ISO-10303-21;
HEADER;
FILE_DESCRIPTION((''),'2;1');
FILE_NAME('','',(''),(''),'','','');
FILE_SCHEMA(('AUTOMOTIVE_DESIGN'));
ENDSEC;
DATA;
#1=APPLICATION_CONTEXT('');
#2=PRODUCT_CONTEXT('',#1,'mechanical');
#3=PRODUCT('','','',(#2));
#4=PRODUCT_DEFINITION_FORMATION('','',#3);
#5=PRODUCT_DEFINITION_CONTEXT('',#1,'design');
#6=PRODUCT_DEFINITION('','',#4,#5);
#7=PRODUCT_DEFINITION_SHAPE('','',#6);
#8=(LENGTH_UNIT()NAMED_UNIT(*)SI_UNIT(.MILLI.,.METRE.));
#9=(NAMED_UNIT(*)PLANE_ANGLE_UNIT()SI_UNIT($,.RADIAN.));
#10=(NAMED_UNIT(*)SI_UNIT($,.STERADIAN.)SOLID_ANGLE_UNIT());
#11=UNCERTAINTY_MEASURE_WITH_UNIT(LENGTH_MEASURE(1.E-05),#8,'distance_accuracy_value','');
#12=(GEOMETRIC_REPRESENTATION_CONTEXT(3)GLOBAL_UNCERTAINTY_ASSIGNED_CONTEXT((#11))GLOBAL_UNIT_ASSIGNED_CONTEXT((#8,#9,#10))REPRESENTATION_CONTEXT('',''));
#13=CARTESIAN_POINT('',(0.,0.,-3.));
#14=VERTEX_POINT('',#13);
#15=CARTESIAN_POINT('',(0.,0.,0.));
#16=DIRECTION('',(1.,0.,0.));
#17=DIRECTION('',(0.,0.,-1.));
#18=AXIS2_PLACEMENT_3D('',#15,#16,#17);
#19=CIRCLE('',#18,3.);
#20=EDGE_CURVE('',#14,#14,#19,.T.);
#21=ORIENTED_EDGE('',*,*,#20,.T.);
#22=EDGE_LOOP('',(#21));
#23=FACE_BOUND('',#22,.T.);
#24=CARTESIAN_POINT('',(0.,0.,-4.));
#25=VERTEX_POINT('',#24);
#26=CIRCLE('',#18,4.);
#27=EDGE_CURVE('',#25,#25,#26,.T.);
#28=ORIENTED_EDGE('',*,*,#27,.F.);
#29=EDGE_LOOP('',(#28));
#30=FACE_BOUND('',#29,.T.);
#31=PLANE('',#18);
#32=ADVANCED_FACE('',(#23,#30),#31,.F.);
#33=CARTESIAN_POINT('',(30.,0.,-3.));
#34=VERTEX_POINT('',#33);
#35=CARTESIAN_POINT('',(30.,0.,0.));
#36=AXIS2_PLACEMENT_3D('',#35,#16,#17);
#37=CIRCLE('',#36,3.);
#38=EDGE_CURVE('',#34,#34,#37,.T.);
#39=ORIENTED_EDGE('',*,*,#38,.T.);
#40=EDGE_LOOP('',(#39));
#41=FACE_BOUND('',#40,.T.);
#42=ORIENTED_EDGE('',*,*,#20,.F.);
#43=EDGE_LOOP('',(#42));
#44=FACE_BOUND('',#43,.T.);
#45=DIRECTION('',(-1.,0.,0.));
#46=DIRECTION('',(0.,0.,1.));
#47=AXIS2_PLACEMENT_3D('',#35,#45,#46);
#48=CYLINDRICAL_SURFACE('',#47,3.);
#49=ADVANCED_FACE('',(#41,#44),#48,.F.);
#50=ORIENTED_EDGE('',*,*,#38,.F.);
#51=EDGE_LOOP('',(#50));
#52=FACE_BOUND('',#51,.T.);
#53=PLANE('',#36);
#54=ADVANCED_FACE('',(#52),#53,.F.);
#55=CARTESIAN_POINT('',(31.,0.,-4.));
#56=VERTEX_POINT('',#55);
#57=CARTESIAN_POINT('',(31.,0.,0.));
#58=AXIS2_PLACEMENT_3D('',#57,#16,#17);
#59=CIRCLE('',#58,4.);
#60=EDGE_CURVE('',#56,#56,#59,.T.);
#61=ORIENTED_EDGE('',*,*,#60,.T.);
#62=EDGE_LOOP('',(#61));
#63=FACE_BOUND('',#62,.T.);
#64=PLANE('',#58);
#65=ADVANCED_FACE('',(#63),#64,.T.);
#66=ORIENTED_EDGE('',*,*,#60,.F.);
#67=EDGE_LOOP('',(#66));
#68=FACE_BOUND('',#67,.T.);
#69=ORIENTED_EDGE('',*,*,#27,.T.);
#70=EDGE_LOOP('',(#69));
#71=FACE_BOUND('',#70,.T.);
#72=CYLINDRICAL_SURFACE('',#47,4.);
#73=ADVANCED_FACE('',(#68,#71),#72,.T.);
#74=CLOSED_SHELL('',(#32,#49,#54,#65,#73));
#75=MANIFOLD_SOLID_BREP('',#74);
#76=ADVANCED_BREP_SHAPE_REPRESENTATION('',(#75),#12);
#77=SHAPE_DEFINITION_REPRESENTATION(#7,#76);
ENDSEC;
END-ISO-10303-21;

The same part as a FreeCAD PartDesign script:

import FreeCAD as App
import Part
import Sketcher
Q = App.Units.Quantity

doc = App.newDocument("Part")
body = doc.addObject("PartDesign::Body", "Body")

sketch1 = body.newObject("Sketcher::SketchObject", "Sketch")
sketch1.AttachmentSupport = (doc.getObject("YZ_Plane"), [""])
sketch1.MapMode = "FlatFace"
sketch1.addGeometry([
    Part.Circle(App.Vector(0, 0, 0), App.Vector(0, 0, 1), 4),
    Part.Circle(App.Vector(0, 0, 0), App.Vector(0, 0, 1), 3),
], False)
sketch1.addConstraint([
    Sketcher.Constraint("Coincident", 0, 3, -1, 1),
    Sketcher.Constraint("Coincident", 1, 3, -1, 1),
    Sketcher.Constraint("Diameter", 0, Q("8 mm")),
    Sketcher.Constraint("Diameter", 1, Q("6 mm")),
])
pad1 = body.newObject("PartDesign::Pad", "Pad")
pad1.Profile = sketch1
pad1.Length = 30

sketch2 = body.newObject("Sketcher::SketchObject", "Sketch001")
sketch2.AttachmentSupport = (doc.getObject("YZ_Plane"), [""])
sketch2.MapMode = "FlatFace"
sketch2.AttachmentOffset = App.Placement(App.Vector(0, 0, 30), App.Rotation())
sketch2.addGeometry(Part.Circle(App.Vector(0, 0, 0), App.Vector(0, 0, 1), 4), False)
sketch2.addConstraint([
    Sketcher.Constraint("Coincident", 0, 3, -1, 1),
    Sketcher.Constraint("Diameter", 0, Q("8 mm")),
])
pad2 = body.newObject("PartDesign::Pad", "Pad001")
pad2.Profile = sketch2
pad2.Length = 1

doc.recompute()
